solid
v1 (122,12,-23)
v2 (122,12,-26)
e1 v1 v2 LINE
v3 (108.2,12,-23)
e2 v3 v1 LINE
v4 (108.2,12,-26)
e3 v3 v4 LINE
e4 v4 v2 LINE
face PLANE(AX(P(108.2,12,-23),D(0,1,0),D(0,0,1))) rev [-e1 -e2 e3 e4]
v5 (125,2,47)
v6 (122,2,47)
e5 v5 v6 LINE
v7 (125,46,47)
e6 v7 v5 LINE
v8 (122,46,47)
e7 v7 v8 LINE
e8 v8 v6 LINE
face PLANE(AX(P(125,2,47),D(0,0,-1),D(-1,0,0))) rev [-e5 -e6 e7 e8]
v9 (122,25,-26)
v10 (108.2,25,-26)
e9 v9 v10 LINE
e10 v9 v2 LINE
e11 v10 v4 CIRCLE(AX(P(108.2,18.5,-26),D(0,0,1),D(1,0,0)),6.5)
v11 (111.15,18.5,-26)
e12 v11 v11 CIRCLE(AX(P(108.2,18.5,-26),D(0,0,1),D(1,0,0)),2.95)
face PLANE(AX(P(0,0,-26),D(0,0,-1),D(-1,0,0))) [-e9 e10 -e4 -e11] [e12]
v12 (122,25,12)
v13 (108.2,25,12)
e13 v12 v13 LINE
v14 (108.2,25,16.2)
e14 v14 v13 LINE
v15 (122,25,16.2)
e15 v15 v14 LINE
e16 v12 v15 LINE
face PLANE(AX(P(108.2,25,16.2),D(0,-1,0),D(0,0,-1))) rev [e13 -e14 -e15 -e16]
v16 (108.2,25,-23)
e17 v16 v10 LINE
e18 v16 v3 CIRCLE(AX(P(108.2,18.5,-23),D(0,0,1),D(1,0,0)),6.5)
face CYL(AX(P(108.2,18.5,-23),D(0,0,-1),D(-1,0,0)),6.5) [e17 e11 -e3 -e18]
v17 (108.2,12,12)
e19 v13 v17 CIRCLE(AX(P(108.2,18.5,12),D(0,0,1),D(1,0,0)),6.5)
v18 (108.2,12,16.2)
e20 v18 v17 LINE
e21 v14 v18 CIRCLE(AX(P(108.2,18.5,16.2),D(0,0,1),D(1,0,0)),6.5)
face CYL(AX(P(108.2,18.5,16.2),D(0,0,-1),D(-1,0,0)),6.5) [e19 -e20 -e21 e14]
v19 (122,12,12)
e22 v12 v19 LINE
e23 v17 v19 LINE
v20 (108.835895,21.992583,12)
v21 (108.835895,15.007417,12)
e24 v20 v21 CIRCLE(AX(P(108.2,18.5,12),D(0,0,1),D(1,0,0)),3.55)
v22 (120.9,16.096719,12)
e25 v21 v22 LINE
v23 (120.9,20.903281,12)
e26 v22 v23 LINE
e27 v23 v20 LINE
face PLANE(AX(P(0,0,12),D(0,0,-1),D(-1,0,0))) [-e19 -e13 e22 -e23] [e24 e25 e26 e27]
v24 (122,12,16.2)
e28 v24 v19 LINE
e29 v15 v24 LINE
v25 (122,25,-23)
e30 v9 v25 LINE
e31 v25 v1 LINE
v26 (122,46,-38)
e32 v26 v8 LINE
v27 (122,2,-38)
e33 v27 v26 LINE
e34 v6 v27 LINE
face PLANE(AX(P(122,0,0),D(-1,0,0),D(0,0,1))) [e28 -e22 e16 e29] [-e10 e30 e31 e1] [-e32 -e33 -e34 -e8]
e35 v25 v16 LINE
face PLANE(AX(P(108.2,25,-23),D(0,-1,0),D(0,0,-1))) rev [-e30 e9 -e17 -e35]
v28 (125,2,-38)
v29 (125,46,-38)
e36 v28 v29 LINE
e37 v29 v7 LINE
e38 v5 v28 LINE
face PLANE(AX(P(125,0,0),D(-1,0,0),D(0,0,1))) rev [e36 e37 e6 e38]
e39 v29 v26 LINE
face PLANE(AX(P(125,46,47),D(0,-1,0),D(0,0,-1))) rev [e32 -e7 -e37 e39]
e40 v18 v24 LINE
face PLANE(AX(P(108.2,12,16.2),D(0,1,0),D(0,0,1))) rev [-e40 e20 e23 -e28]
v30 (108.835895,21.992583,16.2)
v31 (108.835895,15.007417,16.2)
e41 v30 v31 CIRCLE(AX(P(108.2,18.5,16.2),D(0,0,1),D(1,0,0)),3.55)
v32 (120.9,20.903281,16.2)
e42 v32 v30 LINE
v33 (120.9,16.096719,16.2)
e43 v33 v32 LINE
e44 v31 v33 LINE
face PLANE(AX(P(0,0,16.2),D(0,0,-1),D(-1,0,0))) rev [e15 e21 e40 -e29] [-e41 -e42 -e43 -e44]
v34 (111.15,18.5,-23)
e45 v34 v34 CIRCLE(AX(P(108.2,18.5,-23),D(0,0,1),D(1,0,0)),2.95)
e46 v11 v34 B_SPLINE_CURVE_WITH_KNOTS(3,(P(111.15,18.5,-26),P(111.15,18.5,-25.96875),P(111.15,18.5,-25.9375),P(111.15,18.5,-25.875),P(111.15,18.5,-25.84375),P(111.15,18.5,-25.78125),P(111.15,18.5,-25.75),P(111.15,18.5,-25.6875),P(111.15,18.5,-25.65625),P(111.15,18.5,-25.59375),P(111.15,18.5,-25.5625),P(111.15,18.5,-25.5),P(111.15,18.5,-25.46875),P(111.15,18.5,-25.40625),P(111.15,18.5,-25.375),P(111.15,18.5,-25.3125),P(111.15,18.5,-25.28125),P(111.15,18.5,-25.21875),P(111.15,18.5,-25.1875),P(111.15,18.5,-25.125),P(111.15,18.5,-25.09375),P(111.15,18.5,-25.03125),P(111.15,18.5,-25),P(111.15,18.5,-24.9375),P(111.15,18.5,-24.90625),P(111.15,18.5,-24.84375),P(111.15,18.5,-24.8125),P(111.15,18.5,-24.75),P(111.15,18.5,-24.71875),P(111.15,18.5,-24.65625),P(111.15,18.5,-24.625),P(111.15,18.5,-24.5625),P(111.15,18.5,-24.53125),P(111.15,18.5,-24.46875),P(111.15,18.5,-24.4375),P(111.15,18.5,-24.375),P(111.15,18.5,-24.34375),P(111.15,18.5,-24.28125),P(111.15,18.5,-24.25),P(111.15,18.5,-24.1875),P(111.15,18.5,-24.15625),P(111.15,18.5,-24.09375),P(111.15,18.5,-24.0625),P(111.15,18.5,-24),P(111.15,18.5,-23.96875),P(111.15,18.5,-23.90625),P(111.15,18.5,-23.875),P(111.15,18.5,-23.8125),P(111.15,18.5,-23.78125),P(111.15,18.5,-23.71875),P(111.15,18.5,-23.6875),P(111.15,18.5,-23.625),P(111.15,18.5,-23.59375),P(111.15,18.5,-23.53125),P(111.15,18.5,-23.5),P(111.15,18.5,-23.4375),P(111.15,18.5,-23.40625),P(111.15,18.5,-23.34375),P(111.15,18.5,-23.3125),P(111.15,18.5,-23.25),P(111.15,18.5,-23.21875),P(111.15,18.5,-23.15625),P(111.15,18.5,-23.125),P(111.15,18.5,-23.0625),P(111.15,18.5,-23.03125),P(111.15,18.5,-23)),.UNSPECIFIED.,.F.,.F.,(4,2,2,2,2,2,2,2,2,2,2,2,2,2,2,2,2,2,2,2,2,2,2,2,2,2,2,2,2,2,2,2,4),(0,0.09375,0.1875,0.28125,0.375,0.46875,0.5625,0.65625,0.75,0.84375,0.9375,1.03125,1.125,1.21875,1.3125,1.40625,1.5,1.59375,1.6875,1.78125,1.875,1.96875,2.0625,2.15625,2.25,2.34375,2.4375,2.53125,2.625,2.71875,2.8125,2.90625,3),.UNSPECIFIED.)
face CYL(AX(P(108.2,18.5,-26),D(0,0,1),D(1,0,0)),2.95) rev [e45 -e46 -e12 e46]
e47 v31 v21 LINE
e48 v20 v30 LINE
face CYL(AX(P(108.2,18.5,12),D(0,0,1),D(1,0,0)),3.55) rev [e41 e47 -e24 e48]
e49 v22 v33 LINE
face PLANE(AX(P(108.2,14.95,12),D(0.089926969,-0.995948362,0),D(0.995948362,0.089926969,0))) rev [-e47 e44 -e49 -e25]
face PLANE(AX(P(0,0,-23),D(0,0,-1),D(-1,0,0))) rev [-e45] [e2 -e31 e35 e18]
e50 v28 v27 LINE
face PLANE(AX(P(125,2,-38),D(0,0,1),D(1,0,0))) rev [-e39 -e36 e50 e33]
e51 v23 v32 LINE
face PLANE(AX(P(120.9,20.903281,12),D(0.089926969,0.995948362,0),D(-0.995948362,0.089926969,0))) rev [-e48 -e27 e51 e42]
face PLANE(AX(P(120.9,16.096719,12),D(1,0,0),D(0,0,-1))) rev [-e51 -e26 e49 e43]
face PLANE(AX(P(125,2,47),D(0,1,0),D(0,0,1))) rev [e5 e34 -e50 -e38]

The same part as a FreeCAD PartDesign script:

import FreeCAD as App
import Part
import Sketcher

V = App.Vector


def add_polygon(sketch, points):
    """Adds a closed chain of lines whose ends are joined by coincident constraints."""
    first, n = sketch.GeometryCount, len(points)
    for a, b in zip(points, points[1:] + points[:1]):
        sketch.addGeometry(Part.LineSegment(App.Vector(*a, 0), App.Vector(*b, 0)), False)
    for i in range(n):
        sketch.addConstraint(Sketcher.Constraint("Coincident", first + i, 2, first + (i + 1) % n, 1))

doc = App.newDocument("Part")
body = doc.addObject("PartDesign::Body", "Body")

# Sketch on YZ plane
sketch1 = body.newObject("Sketcher::SketchObject", "Sketch")
sketch1.AttachmentSupport = (doc.getObject("YZ_Plane"), [""])
sketch1.MapMode = "FlatFace"
sketch1.AttachmentOffset = App.Placement(V(0, 0, 123.5), App.Rotation())
add_polygon(sketch1, [(46, 47), (2, 47), (2, -38), (46, -38)])  # lines 0-3
sketch1.addConstraint([
    Sketcher.Constraint("Horizontal", 0),
    Sketcher.Constraint("Vertical", 1),
    Sketcher.Constraint("Horizontal", 2),
    Sketcher.Constraint("Vertical", 3),
    Sketcher.Constraint("DistanceX", 0, 2, 0, 1, 44.0),
    Sketcher.Constraint("DistanceY", 1, 2, 1, 1, 85.0),
    Sketcher.Constraint("DistanceX", -1, 1, 0, 2, 2.0),
    Sketcher.Constraint("DistanceY", -1, 1, 0, 2, 47.0),
])
pad1 = body.newObject("PartDesign::Pad", "Pad")
pad1.Profile = sketch1
pad1.Length = 3
pad1.Midplane = True
body2 = doc.addObject("PartDesign::Body", "Body001")

# Sketch on XY plane
sketch2 = body2.newObject("Sketcher::SketchObject", "Sketch001")
sketch2.AttachmentSupport = (doc.getObject("XY_Plane001"), [""])
sketch2.MapMode = "FlatFace"
sketch2.AttachmentOffset = App.Placement(V(0, 0, 14.1), App.Rotation())
sketch2.addGeometry(Part.Circle(V(108, 18, 0), V(0, 0, 1), 6), False)
sketch2.addConstraint([
    Sketcher.Constraint("Diameter", 0, 13.0),
    Sketcher.Constraint("DistanceX", -1, 1, 0, 3, 108.2),
    Sketcher.Constraint("DistanceY", -1, 1, 0, 3, 18.5),
])
pad2 = body2.newObject("PartDesign::Pad", "Pad001")
pad2.Profile = sketch2
pad2.Length = 4.2
pad2.Midplane = True
body.AllowCompound = True
doc.recompute()

boolean = body.newObject("PartDesign::Boolean", "Boolean")
boolean.Type = "Fuse"
boolean.addObjects([body2])

# Sketch on XY plane
sketch3 = body.newObject("Sketcher::SketchObject", "Sketch002")
sketch3.AttachmentSupport = (doc.getObject("XY_Plane"), [""])
sketch3.MapMode = "FlatFace"
sketch3.AttachmentOffset = App.Placement(V(0, 0, 14.1), App.Rotation())
add_polygon(sketch3, [(108, 25), (108, 12), (122, 12), (122, 25)])  # lines 0-3
sketch3.addConstraint([
    Sketcher.Constraint("Vertical", 0),
    Sketcher.Constraint("Horizontal", 1),
    Sketcher.Constraint("Vertical", 2),
    Sketcher.Constraint("Horizontal", 3),
    Sketcher.Constraint("DistanceY", 0, 2, 0, 1, 13.0),
    Sketcher.Constraint("DistanceX", 1, 1, 1, 2, 14.3),
    Sketcher.Constraint("DistanceY", -1, 1, 0, 2, 12.0),
    Sketcher.Constraint("DistanceX", -1, 1, 0, 2, 108.2),
])
pad3 = body.newObject("PartDesign::Pad", "Pad002")
pad3.Profile = sketch3
pad3.Length = 4.2
pad3.Midplane = True

# Sketch on XY plane
sketch4 = body.newObject("Sketcher::SketchObject", "Sketch003")
sketch4.AttachmentSupport = (doc.getObject("XY_Plane"), [""])
sketch4.MapMode = "FlatFace"
sketch4.AttachmentOffset = App.Placement(V(0, 0, 14.1), App.Rotation())
sketch4.addGeometry(Part.Circle(V(108.2, 18.5, 0), V(0, 0, 1), 3.5), False)
sketch4.addConstraint([
    Sketcher.Constraint("Diameter", 0, 7.1),
    Sketcher.Constraint("DistanceX", -1, 1, 0, 3, 108.2),
    Sketcher.Constraint("DistanceY", -1, 1, 0, 3, 18.5),
])
pocket1 = body.newObject("PartDesign::Pocket", "Pocket")
pocket1.Profile = sketch4
pocket1.Length = 4.2
pocket1.Midplane = True

# Sketch on XY plane
sketch5 = body.newObject("Sketcher::SketchObject", "Sketch004")
sketch5.AttachmentSupport = (doc.getObject("XY_Plane"), [""])
sketch5.MapMode = "FlatFace"
sketch5.AttachmentOffset = App.Placement(V(0, 0, 14.1), App.Rotation())
add_polygon(sketch5, [(108.2, 14.9), (120.9, 16.1), (120.9, 20.9), (108.2, 22.1)])  # lines 0-3
sketch5.addConstraint([
    Sketcher.Constraint("Vertical", 1),
    Sketcher.Constraint("Vertical", 3),
    Sketcher.Constraint("Equal", 0, 2),
    Sketcher.Constraint("DistanceY", 3, 2, 3, 1, 7.1),
    Sketcher.Constraint("DistanceX", -1, 1, 0, 2, 120.9),
    Sketcher.Constraint("DistanceX", -1, 1, 2, 2, 108.2),
    Sketcher.Constraint("DistanceY", -1, 1, 2, 2, 22.05),
    Sketcher.Constraint("DistanceY", 1, 1, 1, 2, 4.806563),
])
pocket2 = body.newObject("PartDesign::Pocket", "Pocket001")
pocket2.Profile = sketch5
pocket2.Length = 4.2
pocket2.Midplane = True
body3 = doc.addObject("PartDesign::Body", "Body002")

# Sketch on XY plane
sketch6 = body3.newObject("Sketcher::SketchObject", "Sketch005")
sketch6.AttachmentSupport = (doc.getObject("XY_Plane002"), [""])
sketch6.MapMode = "FlatFace"
sketch6.AttachmentOffset = App.Placement(V(0, 0, -24.5), App.Rotation())
sketch6.addGeometry(Part.Circle(V(108, 18, 0), V(0, 0, 1), 6), False)
sketch6.addConstraint([
    Sketcher.Constraint("Diameter", 0, 13.0),
    Sketcher.Constraint("DistanceX", -1, 1, 0, 3, 108.2),
    Sketcher.Constraint("DistanceY", -1, 1, 0, 3, 18.5),
])
pad4 = body3.newObject("PartDesign::Pad", "Pad003")
pad4.Profile = sketch6
pad4.Length = 3
pad4.Midplane = True
body.AllowCompound = True
doc.recompute()

boolean2 = body.newObject("PartDesign::Boolean", "Boolean001")
boolean2.Type = "Fuse"
boolean2.addObjects([body3])

# Sketch on XY plane
sketch7 = body.newObject("Sketcher::SketchObject", "Sketch006")
sketch7.AttachmentSupport = (doc.getObject("XY_Plane"), [""])
sketch7.MapMode = "FlatFace"
sketch7.AttachmentOffset = App.Placement(V(0, 0, -24.5), App.Rotation())
add_polygon(sketch7, [(108, 25), (108, 12), (122, 12), (122, 25)])  # lines 0-3
sketch7.addConstraint([
    Sketcher.Constraint("Vertical", 0),
    Sketcher.Constraint("Horizontal", 1),
    Sketcher.Constraint("Vertical", 2),
    Sketcher.Constraint("Horizontal", 3),
    Sketcher.Constraint("DistanceY", 0, 2, 0, 1, 13.0),
    Sketcher.Constraint("DistanceX", 1, 1, 1, 2, 14.3),
    Sketcher.Constraint("DistanceY", -1, 1, 0, 2, 12.0),
    Sketcher.Constraint("DistanceX", -1, 1, 0, 2, 108.2),
])
pad5 = body.newObject("PartDesign::Pad", "Pad004")
pad5.Profile = sketch7
pad5.Length = 3
pad5.Midplane = True

# Sketch on XY plane
sketch8 = body.newObject("Sketcher::SketchObject", "Sketch007")
sketch8.AttachmentSupport = (doc.getObject("XY_Plane"), [""])
sketch8.MapMode = "FlatFace"
sketch8.AttachmentOffset = App.Placement(V(0, 0, -24.5), App.Rotation())
sketch8.addGeometry(Part.Circle(V(108.2, 18.5, 0), V(0, 0, 1), 3), False)
sketch8.addConstraint([
    Sketcher.Constraint("Diameter", 0, 5.9),
    Sketcher.Constraint("DistanceX", -1, 1, 0, 3, 108.2),
    Sketcher.Constraint("DistanceY", -1, 1, 0, 3, 18.5),
])
pocket3 = body.newObject("PartDesign::Pocket", "Pocket002")
pocket3.Profile = sketch8
pocket3.Length = 3
pocket3.Midplane = True

doc.recompute()
